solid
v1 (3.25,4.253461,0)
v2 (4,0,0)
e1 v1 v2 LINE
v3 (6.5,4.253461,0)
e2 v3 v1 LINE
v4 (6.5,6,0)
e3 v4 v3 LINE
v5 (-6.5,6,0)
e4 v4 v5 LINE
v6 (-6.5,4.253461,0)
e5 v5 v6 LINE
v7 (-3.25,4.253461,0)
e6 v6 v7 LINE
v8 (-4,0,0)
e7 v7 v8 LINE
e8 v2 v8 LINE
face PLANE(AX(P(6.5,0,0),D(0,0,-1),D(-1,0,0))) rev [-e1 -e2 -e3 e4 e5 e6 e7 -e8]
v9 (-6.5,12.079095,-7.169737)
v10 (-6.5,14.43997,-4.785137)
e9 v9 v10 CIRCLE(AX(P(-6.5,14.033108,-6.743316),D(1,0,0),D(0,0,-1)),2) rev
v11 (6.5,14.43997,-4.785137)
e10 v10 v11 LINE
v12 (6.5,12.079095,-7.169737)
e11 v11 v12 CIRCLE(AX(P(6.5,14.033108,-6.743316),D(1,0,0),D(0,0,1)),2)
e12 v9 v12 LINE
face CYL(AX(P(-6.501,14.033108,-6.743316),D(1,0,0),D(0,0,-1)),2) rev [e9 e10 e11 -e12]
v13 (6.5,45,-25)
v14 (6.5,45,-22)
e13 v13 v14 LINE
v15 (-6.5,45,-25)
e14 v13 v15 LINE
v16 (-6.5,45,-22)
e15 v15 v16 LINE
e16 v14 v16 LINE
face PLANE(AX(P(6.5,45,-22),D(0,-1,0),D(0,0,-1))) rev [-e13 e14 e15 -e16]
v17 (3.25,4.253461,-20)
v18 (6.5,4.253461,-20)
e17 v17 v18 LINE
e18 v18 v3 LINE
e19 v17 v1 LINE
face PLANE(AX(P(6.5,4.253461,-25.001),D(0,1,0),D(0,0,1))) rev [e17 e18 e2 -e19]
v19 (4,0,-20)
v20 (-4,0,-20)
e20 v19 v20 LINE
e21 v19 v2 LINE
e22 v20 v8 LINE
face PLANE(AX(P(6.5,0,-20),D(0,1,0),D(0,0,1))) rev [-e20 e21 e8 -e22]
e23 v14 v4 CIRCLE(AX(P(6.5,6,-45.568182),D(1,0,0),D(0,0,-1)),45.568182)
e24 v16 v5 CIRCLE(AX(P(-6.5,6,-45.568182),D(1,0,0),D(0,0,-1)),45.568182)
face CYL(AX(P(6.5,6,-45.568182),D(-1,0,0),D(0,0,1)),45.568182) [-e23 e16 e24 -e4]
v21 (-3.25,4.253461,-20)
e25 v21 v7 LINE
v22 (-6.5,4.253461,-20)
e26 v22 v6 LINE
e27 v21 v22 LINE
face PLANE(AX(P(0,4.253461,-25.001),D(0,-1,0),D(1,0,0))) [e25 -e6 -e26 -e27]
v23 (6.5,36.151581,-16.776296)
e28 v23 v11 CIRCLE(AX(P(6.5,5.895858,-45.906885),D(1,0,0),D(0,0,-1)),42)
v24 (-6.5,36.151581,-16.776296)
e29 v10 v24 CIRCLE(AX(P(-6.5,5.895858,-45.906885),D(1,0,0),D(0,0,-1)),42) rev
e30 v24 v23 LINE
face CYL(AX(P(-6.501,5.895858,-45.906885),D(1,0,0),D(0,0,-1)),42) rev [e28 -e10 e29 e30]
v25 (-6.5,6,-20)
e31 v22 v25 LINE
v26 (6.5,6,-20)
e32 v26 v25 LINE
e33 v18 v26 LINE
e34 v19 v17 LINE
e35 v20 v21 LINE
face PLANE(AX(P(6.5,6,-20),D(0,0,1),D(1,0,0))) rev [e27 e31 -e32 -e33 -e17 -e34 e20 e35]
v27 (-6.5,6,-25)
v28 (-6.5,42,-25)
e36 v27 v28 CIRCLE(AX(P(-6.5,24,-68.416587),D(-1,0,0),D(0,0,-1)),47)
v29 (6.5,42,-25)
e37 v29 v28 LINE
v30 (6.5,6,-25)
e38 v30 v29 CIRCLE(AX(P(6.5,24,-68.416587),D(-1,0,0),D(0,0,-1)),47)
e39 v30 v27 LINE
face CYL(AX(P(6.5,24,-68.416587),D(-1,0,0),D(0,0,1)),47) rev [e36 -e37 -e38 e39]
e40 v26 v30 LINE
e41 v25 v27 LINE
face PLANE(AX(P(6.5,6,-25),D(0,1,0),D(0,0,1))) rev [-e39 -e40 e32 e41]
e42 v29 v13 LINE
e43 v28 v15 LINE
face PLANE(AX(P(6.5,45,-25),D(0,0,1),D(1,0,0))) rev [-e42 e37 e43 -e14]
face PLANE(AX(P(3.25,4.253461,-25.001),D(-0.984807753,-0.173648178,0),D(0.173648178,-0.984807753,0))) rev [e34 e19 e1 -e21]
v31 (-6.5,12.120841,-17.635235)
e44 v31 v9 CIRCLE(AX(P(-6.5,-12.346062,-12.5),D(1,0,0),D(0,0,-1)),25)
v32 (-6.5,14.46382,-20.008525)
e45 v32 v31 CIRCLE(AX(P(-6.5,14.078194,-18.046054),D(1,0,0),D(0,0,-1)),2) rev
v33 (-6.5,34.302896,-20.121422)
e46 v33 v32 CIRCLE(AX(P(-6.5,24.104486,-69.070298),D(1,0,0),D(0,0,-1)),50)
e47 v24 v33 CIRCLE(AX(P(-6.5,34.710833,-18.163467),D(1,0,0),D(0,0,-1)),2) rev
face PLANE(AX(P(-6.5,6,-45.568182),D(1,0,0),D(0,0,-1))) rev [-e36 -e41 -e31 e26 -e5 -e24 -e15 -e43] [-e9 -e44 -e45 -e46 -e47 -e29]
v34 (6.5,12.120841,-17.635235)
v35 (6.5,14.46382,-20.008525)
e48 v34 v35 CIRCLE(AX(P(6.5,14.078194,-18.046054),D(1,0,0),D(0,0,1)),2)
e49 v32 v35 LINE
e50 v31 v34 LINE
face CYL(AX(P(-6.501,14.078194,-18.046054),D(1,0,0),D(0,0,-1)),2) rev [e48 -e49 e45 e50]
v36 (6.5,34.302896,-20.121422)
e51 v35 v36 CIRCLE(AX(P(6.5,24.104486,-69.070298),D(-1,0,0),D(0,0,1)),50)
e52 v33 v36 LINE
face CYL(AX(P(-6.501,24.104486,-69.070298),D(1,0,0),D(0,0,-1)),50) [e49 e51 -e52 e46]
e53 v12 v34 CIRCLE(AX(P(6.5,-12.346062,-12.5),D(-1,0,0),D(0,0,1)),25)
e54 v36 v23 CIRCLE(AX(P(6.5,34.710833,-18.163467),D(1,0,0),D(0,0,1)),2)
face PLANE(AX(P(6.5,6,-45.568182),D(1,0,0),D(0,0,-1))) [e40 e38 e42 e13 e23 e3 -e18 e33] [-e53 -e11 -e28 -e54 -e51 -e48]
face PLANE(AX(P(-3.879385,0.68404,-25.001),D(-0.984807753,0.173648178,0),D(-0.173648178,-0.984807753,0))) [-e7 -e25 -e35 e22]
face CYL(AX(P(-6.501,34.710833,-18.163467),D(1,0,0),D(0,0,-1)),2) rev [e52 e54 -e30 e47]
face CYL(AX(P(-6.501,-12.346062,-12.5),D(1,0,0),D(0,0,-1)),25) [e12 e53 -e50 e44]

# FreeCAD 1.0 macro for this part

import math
import FreeCAD as App
import Part
import Sketcher

V = App.Vector
Q = App.Units.Quantity


def add_polygon(sketch, points):
    """Adds a closed chain of lines whose ends are joined by coincident constraints."""
    first, n = sketch.GeometryCount, len(points)
    for a, b in zip(points, points[1:] + points[:1]):
        sketch.addGeometry(Part.LineSegment(App.Vector(*a, 0), App.Vector(*b, 0)), False)
    for i in range(n):
        sketch.addConstraint(Sketcher.Constraint("Coincident", first + i, 2, first + (i + 1) % n, 1))

doc = App.newDocument("Part")
body = doc.addObject("PartDesign::Body", "Body")

sketch1 = doc.addObject("Sketcher::SketchObject", "Sketch")
body.addObject(sketch1)
sketch1.AttachmentSupport = (doc.YZ_Plane, [""])
sketch1.MapMode = "FlatFace"
sketch1.addGeometry([
    Part.LineSegment(V(6, 0, 0), V(0, 0, 0)),
    Part.LineSegment(V(0, 0, 0), V(0, -20, 0)),
    Part.LineSegment(V(0, -20, 0), V(6, -20, 0)),
    Part.LineSegment(V(6, -20, 0), V(6, -25, 0)),
    Part.ArcOfCircle(Part.Circle(V(24, -68.416587, 0), V(0, 0, 1), 47), math.radians(67.481686), math.radians(112.518314)),
    Part.LineSegment(V(42, -25, 0), V(45, -25, 0)),
    Part.LineSegment(V(45, -25, 0), V(45, -22, 0)),
    Part.ArcOfCircle(Part.Circle(V(6, -45.568182, 0), V(0, 0, 1), 45.568182), math.radians(31.145087), math.radians(90)),
], False)
sketch1.addConstraint([
    Sketcher.Constraint("Coincident", 0, 2, 1, 1),
    Sketcher.Constraint("Coincident", 1, 2, 2, 1),
    Sketcher.Constraint("Coincident", 2, 2, 3, 1),
    Sketcher.Constraint("Coincident", 3, 2, 4, 2),
    Sketcher.Constraint("Coincident", 4, 1, 5, 1),
    Sketcher.Constraint("Coincident", 5, 2, 6, 1),
    Sketcher.Constraint("Coincident", 6, 2, 7, 1),
    Sketcher.Constraint("Tangent", 7, 2, 0, 1),
    Sketcher.Constraint("Horizontal", 0),
    Sketcher.Constraint("Vertical", 1),
    Sketcher.Constraint("Horizontal", 2),
    Sketcher.Constraint("Vertical", 3),
    Sketcher.Constraint("Horizontal", 5),
    Sketcher.Constraint("Vertical", 6),
    Sketcher.Constraint("Coincident", 0, 2, -1, 1),
    Sketcher.Constraint("Horizontal", 3, 2, 4, 1),
    Sketcher.Constraint("Vertical", 7, 3, 2, 2),
    Sketcher.Constraint("Equal", 5, 6),
    Sketcher.Constraint("Radius", 4, Q("47 mm")),
    Sketcher.Constraint("DistanceX", 0, 2, 0, 1, Q("6 mm")),
    Sketcher.Constraint("DistanceX", 5, 1, 5, 2, Q("3 mm")),
    Sketcher.Constraint("DistanceY", 1, 2, 1, 1, Q("20 mm")),
    Sketcher.Constraint("DistanceY", 3, 2, 3, 1, Q("5 mm")),
    Sketcher.Constraint("DistanceX", -1, 1, 4, 3, Q("24 mm")),
])
pad1 = doc.addObject("PartDesign::Pad", "Pad")
body.addObject(pad1)
pad1.Profile = sketch1
pad1.Length = 13
pad1.Midplane = True

sketch2 = doc.addObject("Sketcher::SketchObject", "Sketch001")
body.addObject(sketch2)
sketch2.AttachmentSupport = (doc.XY_Plane, [""])
sketch2.MapMode = "FlatFace"
add_polygon(sketch2, [(-6.5, 0), (-4, 0), (-3.25, 4.253461), (-6.5, 4.253461)])
sketch2.addConstraint([
    Sketcher.Constraint("Horizontal", 0),
    Sketcher.Constraint("Horizontal", 2),
    Sketcher.Constraint("Vertical", 3),
    Sketcher.Constraint("PointOnObject", 0, 2, -1),
    Sketcher.Constraint("Angle", 1, Q("80 deg")),
    Sketcher.Constraint("DistanceX", 0, 1, 0, 2, Q("2.5 mm")),
    Sketcher.Constraint("DistanceX", 0, 2, -1, 1, Q("4 mm")),
    Sketcher.Constraint("DistanceX", 2, 2, 2, 1, Q("3.25 mm")),
])
pocket1 = doc.addObject("PartDesign::Pocket", "Pocket")
body.addObject(pocket1)
pocket1.Profile = sketch2
pocket1.Type = "UpToFirst"

sketch3 = doc.addObject("Sketcher::SketchObject", "Sketch002")
body.addObject(sketch3)
sketch3.AttachmentSupport = (doc.XY_Plane, [""])
sketch3.MapMode = "FlatFace"
add_polygon(sketch3, [(4, 0), (6.5, 0), (6.5, 4.253461), (3.25, 4.253461)])
sketch3.addConstraint([
    Sketcher.Constraint("Horizontal", 0),
    Sketcher.Constraint("Vertical", 1),
    Sketcher.Constraint("Horizontal", 2),
    Sketcher.Constraint("PointOnObject", 0, 2, -1),
    Sketcher.Constraint("Angle", 3, Q("-80 deg")),
    Sketcher.Constraint("DistanceX", 0, 1, 0, 2, Q("2.5 mm")),
    Sketcher.Constraint("DistanceX", -1, 1, 3, 2, Q("4 mm")),
    Sketcher.Constraint("DistanceX", 2, 2, 2, 1, Q("3.25 mm")),
])
pocket2 = doc.addObject("PartDesign::Pocket", "Pocket001")
body.addObject(pocket2)
pocket2.Profile = sketch3
pocket2.Type = "UpToFirst"

sketch4 = doc.addObject("Sketcher::SketchObject", "Sketch003")
body.addObject(sketch4)
sketch4.AttachmentSupport = (doc.YZ_Plane, [""])
sketch4.MapMode = "FlatFace"
sketch4.AttachmentOffset = App.Placement(V(0, 0, 6.5), App.Rotation())
sketch4.addGeometry([
    Part.ArcOfCircle(Part.Circle(V(-12.346062, -12.5, 0), V(0, 0, 1), 25), math.radians(-11.853466), math.radians(12.310564)),
    Part.ArcOfCircle(Part.Circle(V(14.078194, -18.046054, 0), V(0, 0, 1), 2), math.radians(168.146534), math.radians(281.117011)),
    Part.ArcOfCircle(Part.Circle(V(24.104486, -69.070298, 0), V(0, 0, 1), 50), math.radians(78.230894), math.radians(101.117011)),
    Part.ArcOfCircle(Part.Circle(V(34.710833, -18.163467, 0), V(0, 0, 1), 2), math.radians(-101.769106), math.radians(43.914603)),
    Part.ArcOfCircle(Part.Circle(V(5.895858, -45.906885, 0), V(0, 0, 1), 42), math.radians(43.914603), math.radians(78.26232)),
    Part.ArcOfCircle(Part.Circle(V(14.033108, -6.743316, 0), V(0, 0, 1), 2), math.radians(78.26232), math.radians(192.310564)),
], False)
sketch4.addConstraint([
    Sketcher.Constraint("Coincident", 0, 1, 1, 1),
    Sketcher.Constraint("Coincident", 1, 2, 2, 2),
    Sketcher.Constraint("Coincident", 2, 1, 3, 1),
    Sketcher.Constraint("Coincident", 3, 2, 4, 1),
    Sketcher.Constraint("Coincident", 4, 2, 5, 1),
    Sketcher.Constraint("Coincident", 5, 2, 0, 2),
    Sketcher.Constraint("Radius", 0, Q("25 mm")),
    Sketcher.Constraint("Radius", 1, Q("2 mm")),
    Sketcher.Constraint("Radius", 2, Q("50 mm")),
    Sketcher.Constraint("Radius", 3, Q("2 mm")),
    Sketcher.Constraint("Radius", 4, Q("42 mm")),
    Sketcher.Constraint("Radius", 5, Q("2 mm")),
    Sketcher.Constraint("DistanceY", 0, 3, -1, 1, Q("12.5 mm")),
    Sketcher.Constraint("DistanceY", 5, 2, 4, 2, Q("2.3846 mm")),
    Sketcher.Constraint("DistanceY", 0, 1, 5, 2, Q("10.465498 mm")),
    Sketcher.Constraint("DistanceX", 5, 2, 1, 3, Q("1.999099 mm")),
    Sketcher.Constraint("DistanceX", 0, 3, -1, 1, Q("12.346062 mm")),
    Sketcher.Constraint("DistanceX", -1, 1, 4, 3, Q("5.895858 mm")),
    Sketcher.Constraint("DistanceX", -1, 1, 0, 1, Q("12.120841 mm")),
    Sketcher.Constraint("DistanceX", -1, 1, 1, 2, Q("14.46382 mm")),
    Sketcher.Constraint("DistanceX", -1, 1, 3, 2, Q("36.151581 mm")),
    Sketcher.Constraint("DistanceX", -1, 1, 4, 2, Q("14.43997 mm")),
    Sketcher.Constraint("DistanceX", 1, 3, 2, 3, Q("10.026292 mm")),
    Sketcher.Constraint("DistanceY", 2, 1, 1, 3, Q("2.075368 mm")),
])
pocket3 = doc.addObject("PartDesign::Pocket", "Pocket002")
body.addObject(pocket3)
pocket3.Profile = sketch4
pocket3.Type = "UpToFirst"

doc.recompute()
